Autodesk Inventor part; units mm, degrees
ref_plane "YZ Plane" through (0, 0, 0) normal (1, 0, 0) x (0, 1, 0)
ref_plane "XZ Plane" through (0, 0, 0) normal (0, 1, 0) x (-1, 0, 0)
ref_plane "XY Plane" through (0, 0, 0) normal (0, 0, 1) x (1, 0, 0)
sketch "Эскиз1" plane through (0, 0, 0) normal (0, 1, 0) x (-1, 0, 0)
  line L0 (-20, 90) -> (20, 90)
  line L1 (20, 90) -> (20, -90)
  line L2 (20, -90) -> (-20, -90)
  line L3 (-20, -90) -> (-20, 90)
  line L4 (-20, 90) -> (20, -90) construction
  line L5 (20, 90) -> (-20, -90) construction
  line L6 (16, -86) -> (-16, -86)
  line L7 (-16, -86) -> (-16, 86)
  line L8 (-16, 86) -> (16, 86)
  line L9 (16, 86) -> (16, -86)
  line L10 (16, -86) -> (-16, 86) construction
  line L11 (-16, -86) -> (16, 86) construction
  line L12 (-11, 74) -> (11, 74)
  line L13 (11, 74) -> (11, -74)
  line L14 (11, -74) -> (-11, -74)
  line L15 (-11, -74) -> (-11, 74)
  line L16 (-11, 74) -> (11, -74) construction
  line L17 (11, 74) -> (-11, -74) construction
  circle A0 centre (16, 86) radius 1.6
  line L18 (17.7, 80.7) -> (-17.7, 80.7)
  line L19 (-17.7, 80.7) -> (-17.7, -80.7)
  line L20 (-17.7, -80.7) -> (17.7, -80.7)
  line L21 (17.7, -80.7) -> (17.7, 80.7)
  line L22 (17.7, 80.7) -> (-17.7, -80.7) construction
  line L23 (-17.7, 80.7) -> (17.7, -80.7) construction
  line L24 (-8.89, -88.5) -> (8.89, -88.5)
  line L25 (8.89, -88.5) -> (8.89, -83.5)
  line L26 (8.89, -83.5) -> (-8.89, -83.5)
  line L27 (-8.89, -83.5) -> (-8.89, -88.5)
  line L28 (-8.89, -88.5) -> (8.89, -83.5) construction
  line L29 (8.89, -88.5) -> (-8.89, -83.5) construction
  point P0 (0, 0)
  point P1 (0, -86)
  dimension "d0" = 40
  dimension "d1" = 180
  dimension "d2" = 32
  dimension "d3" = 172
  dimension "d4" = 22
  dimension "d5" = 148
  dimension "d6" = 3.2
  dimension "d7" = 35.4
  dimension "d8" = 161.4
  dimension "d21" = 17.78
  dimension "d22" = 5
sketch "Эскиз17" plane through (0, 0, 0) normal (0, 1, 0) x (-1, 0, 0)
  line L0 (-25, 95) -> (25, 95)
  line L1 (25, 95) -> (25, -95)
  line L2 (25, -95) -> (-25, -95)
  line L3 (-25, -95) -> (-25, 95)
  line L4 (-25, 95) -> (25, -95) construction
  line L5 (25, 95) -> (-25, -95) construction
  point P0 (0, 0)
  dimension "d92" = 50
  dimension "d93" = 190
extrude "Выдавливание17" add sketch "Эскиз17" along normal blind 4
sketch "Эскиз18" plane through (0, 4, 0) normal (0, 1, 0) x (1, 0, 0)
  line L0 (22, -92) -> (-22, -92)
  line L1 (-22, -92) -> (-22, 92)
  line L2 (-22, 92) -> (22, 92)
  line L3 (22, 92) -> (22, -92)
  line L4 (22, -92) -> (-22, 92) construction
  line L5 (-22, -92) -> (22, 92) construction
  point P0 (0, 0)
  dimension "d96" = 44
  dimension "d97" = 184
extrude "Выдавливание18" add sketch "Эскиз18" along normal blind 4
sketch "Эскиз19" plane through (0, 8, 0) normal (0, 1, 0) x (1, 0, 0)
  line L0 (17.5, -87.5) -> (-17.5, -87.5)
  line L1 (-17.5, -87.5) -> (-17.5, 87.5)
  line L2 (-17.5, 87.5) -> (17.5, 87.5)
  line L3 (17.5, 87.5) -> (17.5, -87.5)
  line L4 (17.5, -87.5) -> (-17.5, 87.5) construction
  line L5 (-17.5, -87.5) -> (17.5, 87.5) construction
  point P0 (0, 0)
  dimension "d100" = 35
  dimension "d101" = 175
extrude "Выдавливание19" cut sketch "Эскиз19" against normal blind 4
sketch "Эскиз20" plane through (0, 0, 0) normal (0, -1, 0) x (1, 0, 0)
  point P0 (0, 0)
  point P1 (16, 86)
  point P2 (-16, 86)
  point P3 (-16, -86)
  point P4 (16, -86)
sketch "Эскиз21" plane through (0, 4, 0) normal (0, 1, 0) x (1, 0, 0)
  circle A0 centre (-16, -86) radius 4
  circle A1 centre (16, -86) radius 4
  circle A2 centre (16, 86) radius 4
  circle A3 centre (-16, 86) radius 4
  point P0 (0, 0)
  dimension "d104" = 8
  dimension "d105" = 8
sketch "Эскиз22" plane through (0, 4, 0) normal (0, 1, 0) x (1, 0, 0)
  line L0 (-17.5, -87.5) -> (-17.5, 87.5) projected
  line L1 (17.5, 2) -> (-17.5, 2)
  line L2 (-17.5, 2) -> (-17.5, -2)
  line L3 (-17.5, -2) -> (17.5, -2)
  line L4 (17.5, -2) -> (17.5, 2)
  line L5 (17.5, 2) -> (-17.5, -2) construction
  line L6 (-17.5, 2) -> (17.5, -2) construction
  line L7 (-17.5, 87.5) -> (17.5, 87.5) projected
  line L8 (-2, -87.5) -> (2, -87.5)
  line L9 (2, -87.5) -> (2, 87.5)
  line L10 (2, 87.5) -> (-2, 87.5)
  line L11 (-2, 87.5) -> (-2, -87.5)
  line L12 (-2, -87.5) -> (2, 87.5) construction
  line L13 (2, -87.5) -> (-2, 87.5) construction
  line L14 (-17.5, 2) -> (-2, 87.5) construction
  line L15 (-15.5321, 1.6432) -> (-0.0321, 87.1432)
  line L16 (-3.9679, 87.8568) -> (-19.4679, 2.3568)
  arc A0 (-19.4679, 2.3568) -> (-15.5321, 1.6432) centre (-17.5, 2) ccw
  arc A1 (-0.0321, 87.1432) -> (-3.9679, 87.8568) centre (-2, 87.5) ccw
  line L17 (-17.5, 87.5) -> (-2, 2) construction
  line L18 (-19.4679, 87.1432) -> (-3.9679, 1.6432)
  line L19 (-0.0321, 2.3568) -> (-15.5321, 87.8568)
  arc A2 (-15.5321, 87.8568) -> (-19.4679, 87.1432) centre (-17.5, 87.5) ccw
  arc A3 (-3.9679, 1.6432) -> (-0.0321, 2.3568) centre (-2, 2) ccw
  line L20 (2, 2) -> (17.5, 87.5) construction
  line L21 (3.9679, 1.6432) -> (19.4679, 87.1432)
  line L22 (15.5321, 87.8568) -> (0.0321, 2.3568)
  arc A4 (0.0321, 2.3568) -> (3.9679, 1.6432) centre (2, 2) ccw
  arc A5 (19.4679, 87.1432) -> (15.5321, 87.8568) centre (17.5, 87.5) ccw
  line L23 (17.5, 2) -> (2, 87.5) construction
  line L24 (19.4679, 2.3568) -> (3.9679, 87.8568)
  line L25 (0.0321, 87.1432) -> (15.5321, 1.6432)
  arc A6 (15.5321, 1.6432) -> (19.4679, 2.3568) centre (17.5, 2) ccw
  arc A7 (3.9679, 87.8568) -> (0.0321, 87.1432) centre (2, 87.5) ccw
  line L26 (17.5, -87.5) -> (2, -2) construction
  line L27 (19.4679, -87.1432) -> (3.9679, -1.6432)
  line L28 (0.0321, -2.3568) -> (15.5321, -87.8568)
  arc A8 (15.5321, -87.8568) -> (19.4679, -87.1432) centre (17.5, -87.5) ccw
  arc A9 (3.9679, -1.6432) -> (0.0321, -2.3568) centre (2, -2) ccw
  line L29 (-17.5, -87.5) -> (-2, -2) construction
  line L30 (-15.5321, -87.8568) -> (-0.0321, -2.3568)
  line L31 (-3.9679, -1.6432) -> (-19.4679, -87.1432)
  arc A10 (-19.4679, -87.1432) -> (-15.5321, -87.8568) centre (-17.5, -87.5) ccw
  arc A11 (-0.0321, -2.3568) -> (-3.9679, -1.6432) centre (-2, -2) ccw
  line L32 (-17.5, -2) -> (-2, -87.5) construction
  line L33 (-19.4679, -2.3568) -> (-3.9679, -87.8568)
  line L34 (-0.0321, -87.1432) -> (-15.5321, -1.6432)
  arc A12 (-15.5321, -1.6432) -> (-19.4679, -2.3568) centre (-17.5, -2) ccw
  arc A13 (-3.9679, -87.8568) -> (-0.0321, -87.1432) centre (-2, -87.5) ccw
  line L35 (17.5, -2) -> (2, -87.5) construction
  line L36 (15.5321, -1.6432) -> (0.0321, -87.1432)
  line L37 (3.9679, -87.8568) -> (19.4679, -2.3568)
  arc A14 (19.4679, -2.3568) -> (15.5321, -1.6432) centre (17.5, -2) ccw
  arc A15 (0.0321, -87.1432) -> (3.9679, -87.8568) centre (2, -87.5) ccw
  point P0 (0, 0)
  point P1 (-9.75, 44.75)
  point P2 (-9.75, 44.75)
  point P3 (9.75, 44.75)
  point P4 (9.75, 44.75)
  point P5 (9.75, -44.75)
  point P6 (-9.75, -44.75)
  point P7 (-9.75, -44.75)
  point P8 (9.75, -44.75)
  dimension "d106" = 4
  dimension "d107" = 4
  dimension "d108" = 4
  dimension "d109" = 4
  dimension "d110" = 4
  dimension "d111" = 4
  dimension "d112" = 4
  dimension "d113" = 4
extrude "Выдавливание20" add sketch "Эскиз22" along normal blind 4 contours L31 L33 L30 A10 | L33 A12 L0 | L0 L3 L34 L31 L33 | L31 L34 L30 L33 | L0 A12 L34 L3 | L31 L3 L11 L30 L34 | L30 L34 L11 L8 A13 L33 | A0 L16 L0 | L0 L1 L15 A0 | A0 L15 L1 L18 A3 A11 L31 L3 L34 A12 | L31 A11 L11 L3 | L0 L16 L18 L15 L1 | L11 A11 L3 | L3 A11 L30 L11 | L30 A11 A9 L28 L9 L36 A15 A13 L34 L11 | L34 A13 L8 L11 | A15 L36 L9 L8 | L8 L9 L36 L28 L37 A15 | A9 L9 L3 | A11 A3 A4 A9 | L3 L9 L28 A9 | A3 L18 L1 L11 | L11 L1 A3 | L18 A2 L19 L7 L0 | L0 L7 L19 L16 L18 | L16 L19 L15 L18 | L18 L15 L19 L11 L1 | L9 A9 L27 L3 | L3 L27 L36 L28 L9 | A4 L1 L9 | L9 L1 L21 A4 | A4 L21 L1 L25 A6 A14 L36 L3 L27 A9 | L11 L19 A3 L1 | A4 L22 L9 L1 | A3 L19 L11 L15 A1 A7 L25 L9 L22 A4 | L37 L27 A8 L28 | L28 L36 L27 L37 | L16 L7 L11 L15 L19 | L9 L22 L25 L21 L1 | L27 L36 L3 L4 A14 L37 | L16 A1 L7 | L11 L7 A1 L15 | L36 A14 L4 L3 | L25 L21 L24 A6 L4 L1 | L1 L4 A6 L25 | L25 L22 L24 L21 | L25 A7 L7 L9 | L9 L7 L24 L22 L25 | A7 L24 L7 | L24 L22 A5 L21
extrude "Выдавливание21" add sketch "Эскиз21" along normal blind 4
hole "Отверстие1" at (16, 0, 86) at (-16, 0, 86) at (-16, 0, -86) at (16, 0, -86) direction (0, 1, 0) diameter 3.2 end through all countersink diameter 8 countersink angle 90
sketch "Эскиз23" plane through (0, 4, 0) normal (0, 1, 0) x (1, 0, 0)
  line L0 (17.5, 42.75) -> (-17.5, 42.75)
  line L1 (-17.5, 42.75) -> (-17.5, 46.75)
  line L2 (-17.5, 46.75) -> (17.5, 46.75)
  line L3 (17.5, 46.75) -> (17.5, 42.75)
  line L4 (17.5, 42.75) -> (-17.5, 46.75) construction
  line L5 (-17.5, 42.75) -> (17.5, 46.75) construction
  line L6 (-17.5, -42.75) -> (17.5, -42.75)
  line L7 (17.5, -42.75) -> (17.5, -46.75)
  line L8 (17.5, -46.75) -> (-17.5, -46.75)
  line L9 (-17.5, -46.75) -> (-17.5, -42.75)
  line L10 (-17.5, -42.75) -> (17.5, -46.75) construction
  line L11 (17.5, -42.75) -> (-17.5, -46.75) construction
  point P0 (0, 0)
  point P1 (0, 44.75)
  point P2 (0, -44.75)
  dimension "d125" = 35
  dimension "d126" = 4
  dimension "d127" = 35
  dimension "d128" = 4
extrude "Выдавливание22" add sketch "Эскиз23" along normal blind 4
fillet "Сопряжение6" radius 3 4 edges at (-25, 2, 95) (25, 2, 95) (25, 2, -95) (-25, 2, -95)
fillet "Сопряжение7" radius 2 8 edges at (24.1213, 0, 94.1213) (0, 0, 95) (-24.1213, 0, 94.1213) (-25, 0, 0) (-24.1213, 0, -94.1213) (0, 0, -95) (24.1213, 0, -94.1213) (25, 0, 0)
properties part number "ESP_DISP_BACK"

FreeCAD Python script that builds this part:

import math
import FreeCAD as App
import Part
import Sketcher

V = App.Vector


def edges_at(feature, points):
    """Names of the edges that pass closest to the given points."""
    edges = feature.Shape.Edges
    near = lambda p: min(range(len(edges)), key=lambda i: edges[i].distToShape(Part.Vertex(*p))[0])
    return sorted({f"Edge{near(p) + 1}" for p in points})


def add_polygon(sketch, points):
    """Adds a closed chain of lines whose ends are joined by coincident constraints."""
    first, n = sketch.GeometryCount, len(points)
    for a, b in zip(points, points[1:] + points[:1]):
        sketch.addGeometry(Part.LineSegment(App.Vector(*a, 0), App.Vector(*b, 0)), False)
    for i in range(n):
        sketch.addConstraint(Sketcher.Constraint("Coincident", first + i, 2, first + (i + 1) % n, 1))

doc = App.newDocument("Part")
body = doc.addObject("PartDesign::Body", "Body")

sketch1 = body.newObject("Sketcher::SketchObject", "Sketch")
sketch1.AttachmentSupport = (doc.getObject("XZ_Plane"), [""])
sketch1.MapMode = "FlatFace"
add_polygon(sketch1, [(-25, 95), (25, 95), (25, -95), (-25, -95)])
sketch1.addConstraint([
    Sketcher.Constraint("Horizontal", 0),
    Sketcher.Constraint("Vertical", 1),
    Sketcher.Constraint("Horizontal", 2),
    Sketcher.Constraint("Vertical", 3),
    Sketcher.Constraint("Symmetric", 0, 2, 2, 2, -1, 1),
    Sketcher.Constraint("DistanceX", 0, 1, 0, 2, 50.0),
    Sketcher.Constraint("DistanceY", 1, 2, 1, 1, 190.0),
])
pad1 = body.newObject("PartDesign::Pad", "Pad")
pad1.Profile = sketch1
pad1.Length = 4
pad1.Reversed = True

sketch2 = body.newObject("Sketcher::SketchObject", "Sketch001")
sketch2.AttachmentSupport = (doc.getObject("XZ_Plane"), [""])
sketch2.MapMode = "FlatFace"
sketch2.AttachmentOffset = App.Placement(V(0, 0, -4), App.Rotation())
add_polygon(sketch2, [(-22, 92), (22, 92), (22, -92), (-22, -92)])
sketch2.addConstraint([
    Sketcher.Constraint("Horizontal", 0),
    Sketcher.Constraint("Vertical", 1),
    Sketcher.Constraint("Horizontal", 2),
    Sketcher.Constraint("Vertical", 3),
    Sketcher.Constraint("Symmetric", 0, 2, 2, 2, -1, 1),
    Sketcher.Constraint("DistanceX", 0, 1, 0, 2, 44.0),
    Sketcher.Constraint("DistanceY", 1, 2, 1, 1, 184.0),
])
pad2 = body.newObject("PartDesign::Pad", "Pad001")
pad2.Profile = sketch2
pad2.Length = 4
pad2.Reversed = True

sketch3 = body.newObject("Sketcher::SketchObject", "Sketch002")
sketch3.AttachmentSupport = (doc.getObject("XZ_Plane"), [""])
sketch3.MapMode = "FlatFace"
sketch3.AttachmentOffset = App.Placement(V(0, 0, -8), App.Rotation())
add_polygon(sketch3, [(-18, 88), (18, 88), (18, -88), (-18, -88)])
sketch3.addConstraint([
    Sketcher.Constraint("Horizontal", 0),
    Sketcher.Constraint("Vertical", 1),
    Sketcher.Constraint("Horizontal", 2),
    Sketcher.Constraint("Vertical", 3),
    Sketcher.Constraint("Symmetric", 0, 2, 2, 2, -1, 1),
    Sketcher.Constraint("DistanceX", 0, 1, 0, 2, 35.0),
    Sketcher.Constraint("DistanceY", 1, 2, 1, 1, 175.0),
])
pocket1 = body.newObject("PartDesign::Pocket", "Pocket")
pocket1.Profile = sketch3
pocket1.Length = 4
pocket1.Reversed = True

sketch4 = body.newObject("Sketcher::SketchObject", "Sketch003")
sketch4.AttachmentSupport = (doc.getObject("XZ_Plane"), [""])
sketch4.MapMode = "FlatFace"
sketch4.AttachmentOffset = App.Placement(V(0, 0, -4), App.Rotation())
sketch4.addGeometry(Part.LineSegment(V(-11.8, 44.8, 0), V(-19.5, 87.1, 0)), False)
sketch4.addGeometry(Part.ArcOfCircle(Part.Circle(V(-17.5, 87.5, 0), V(0, 0, 1), 2), math.radians(10), math.radians(190)), False)
sketch4.addGeometry(Part.LineSegment(V(-15.5, 87.9, 0), V(-9.8, 56, 0)), False)
sketch4.addGeometry(Part.LineSegment(V(-9.8, 56, 0), V(-4, 87.9, 0)), False)
sketch4.addGeometry(Part.ArcOfCircle(Part.Circle(V(-2, 87.5, 0), V(0, 0, 1), 2), math.radians(0), math.radians(170)), False)
sketch4.addGeometry(Part.ArcOfCircle(Part.Circle(V(2, 87.5, 0), V(0, 0, 1), 2), math.radians(10), math.radians(180)), False)
sketch4.addGeometry(Part.LineSegment(V(4, 87.9, 0), V(9.8, 56, 0)), False)
sketch4.addGeometry(Part.LineSegment(V(9.8, 56, 0), V(15.5, 87.9, 0)), False)
sketch4.addGeometry(Part.ArcOfCircle(Part.Circle(V(17.5, 87.5, 0), V(0, 0, 1), 2), math.radians(-10), math.radians(170)), False)
sketch4.addGeometry(Part.LineSegment(V(19.5, 87.1, 0), V(11.8, 44.8, 0)), False)
sketch4.addGeometry(Part.LineSegment(V(11.8, 44.8, 0), V(19.5, 2.4, 0)), False)
sketch4.addGeometry(Part.ArcOfCircle(Part.Circle(V(17.5, 2, 0), V(0, 0, 1), 2), math.radians(-90), math.radians(10)), False)
sketch4.addGeometry(Part.ArcOfCircle(Part.Circle(V(17.5, -2, 0), V(0, 0, 1), 2), math.radians(-10), math.radians(90)), False)
sketch4.addGeometry(Part.LineSegment(V(19.5, -2.4, 0), V(11.8, -44.8, 0)), False)
sketch4.addGeometry(Part.LineSegment(V(11.8, -44.8, 0), V(19.5, -87.1, 0)), False)
sketch4.addGeometry(Part.ArcOfCircle(Part.Circle(V(17.5, -87.5, 0), V(0, 0, 1), 2), math.radians(-170), math.radians(10)), False)
sketch4.addGeometry(Part.LineSegment(V(15.5, -87.9, 0), V(9.8, -56, 0)), False)
sketch4.addGeometry(Part.LineSegment(V(9.8, -56, 0), V(4, -87.9, 0)), False)
sketch4.addGeometry(Part.ArcOfCircle(Part.Circle(V(2, -87.5, 0), V(0, 0, 1), 2), math.radians(-180), math.radians(-10)), False)
sketch4.addGeometry(Part.ArcOfCircle(Part.Circle(V(-2, -87.5, 0), V(0, 0, 1), 2), math.radians(-170), math.radians(0)), False)
sketch4.addGeometry(Part.LineSegment(V(-4, -87.9, 0), V(-9.8, -56, 0)), False)
sketch4.addGeometry(Part.LineSegment(V(-9.8, -56, 0), V(-15.5, -87.9, 0)), False)
sketch4.addGeometry(Part.ArcOfCircle(Part.Circle(V(-17.5, -87.5, 0), V(0, 0, 1), 2), math.radians(170), math.radians(350)), False)
sketch4.addGeometry(Part.LineSegment(V(-19.5, -87.1, 0), V(-11.8, -44.8, 0)), False)
sketch4.addGeometry(Part.LineSegment(V(-11.8, -44.8, 0), V(-19.5, -2.4, 0)), False)
sketch4.addGeometry(Part.ArcOfCircle(Part.Circle(V(-17.5, -2, 0), V(0, 0, 1), 2), math.radians(90), math.radians(190)), False)
sketch4.addGeometry(Part.ArcOfCircle(Part.Circle(V(-17.5, 2, 0), V(0, 0, 1), 2), math.radians(170), math.radians(270)), False)
sketch4.addGeometry(Part.LineSegment(V(-19.5, 2.4, 0), V(-11.8, 44.8, 0)), False)
add_polygon(sketch4, [(-9.8, 33.5), (-15.5, 2), (-4, 2)])
add_polygon(sketch4, [(-7.7, 44.8), (-2, 13.2), (-2, 76.3)])
add_polygon(sketch4, [(-4, -2), (-15.5, -2), (-9.8, -33.5)])
add_polygon(sketch4, [(2, 76.3), (2, 13.2), (7.7, 44.8)])
add_polygon(sketch4, [(-2, -13.2), (-7.7, -44.8), (-2, -76.3)])
add_polygon(sketch4, [(9.8, 33.5), (4, 2), (15.5, 2)])
add_polygon(sketch4, [(2, -13.2), (2, -76.3), (7.7, -44.8)])
add_polygon(sketch4, [(15.5, -2), (4, -2), (9.8, -33.5)])
sketch4.addConstraint([
    Sketcher.Constraint("Tangent", 0, 2, 1, 2),
    Sketcher.Constraint("Tangent", 1, 1, 2, 1),
    Sketcher.Constraint("Coincident", 2, 2, 3, 1),
    Sketcher.Constraint("Tangent", 3, 2, 4, 2),
    Sketcher.Constraint("Tangent", 4, 1, 5, 2),
    Sketcher.Constraint("Tangent", 5, 1, 6, 1),
    Sketcher.Constraint("Coincident", 6, 2, 7, 1),
    Sketcher.Constraint("Tangent", 7, 2, 8, 2),
    Sketcher.Constraint("Tangent", 8, 1, 9, 1),
    Sketcher.Constraint("Coincident", 9, 2, 10, 1),
    Sketcher.Constraint("Tangent", 10, 2, 11, 2),
    Sketcher.Constraint("Tangent", 11, 1, 12, 2),
    Sketcher.Constraint("Tangent", 12, 1, 13, 1),
    Sketcher.Constraint("Coincident", 13, 2, 14, 1),
    Sketcher.Constraint("Tangent", 14, 2, 15, 2),
    Sketcher.Constraint("Tangent", 15, 1, 16, 1),
    Sketcher.Constraint("Coincident", 16, 2, 17, 1),
    Sketcher.Constraint("Tangent", 17, 2, 18, 2),
    Sketcher.Constraint("Tangent", 18, 1, 19, 2),
    Sketcher.Constraint("Tangent", 19, 1, 20, 1),
    Sketcher.Constraint("Coincident", 20, 2, 21, 1),
    Sketcher.Constraint("Tangent", 21, 2, 22, 2),
    Sketcher.Constraint("Tangent", 22, 1, 23, 1),
    Sketcher.Constraint("Coincident", 23, 2, 24, 1),
    Sketcher.Constraint("Tangent", 24, 2, 25, 2),
    Sketcher.Constraint("Tangent", 25, 1, 26, 2),
    Sketcher.Constraint("Tangent", 26, 1, 27, 1),
    Sketcher.Constraint("Coincident", 27, 2, 0, 1),
    Sketcher.Constraint("Horizontal", 29),
    Sketcher.Constraint("Vertical", 32),
    Sketcher.Constraint("Horizontal", 34),
    Sketcher.Constraint("Vertical", 37),
    Sketcher.Constraint("Vertical", 42),
    Sketcher.Constraint("Horizontal", 44),
    Sketcher.Constraint("Vertical", 46),
    Sketcher.Constraint("Horizontal", 49),
    Sketcher.Constraint("Equal", 1, 4),
    Sketcher.Constraint("Equal", 4, 5),
    Sketcher.Constraint("Equal", 5, 8),
    Sketcher.Constraint("Equal", 8, 11),
    Sketcher.Constraint("Equal", 11, 12),
    Sketcher.Constraint("Equal", 12, 15),
    Sketcher.Constraint("Equal", 15, 18),
    Sketcher.Constraint("Equal", 18, 19),
    Sketcher.Constraint("Equal", 19, 22),
    Sketcher.Constraint("Equal", 22, 25),
    Sketcher.Constraint("Equal", 25, 26),
    Sketcher.Constraint("Symmetric", 1, 3, 15, 3, -1, 1),
    Sketcher.Constraint("Symmetric", 4, 3, 18, 3, -1, 1),
    Sketcher.Constraint("Symmetric", 8, 3, 22, 3, -1, 1),
    Sketcher.Constraint("Symmetric", 11, 3, 25, 3, -1, 1),
    Sketcher.Constraint("Symmetric", 2, 2, 16, 2, -1, 1),
    Sketcher.Constraint("Symmetric", 5, 1, 19, 1, -1, 1),
    Sketcher.Constraint("Symmetric", 9, 2, 23, 2, -1, 1),
    Sketcher.Constraint("Symmetric", 12, 1, 26, 1, -1, 1),
    Sketcher.Constraint("Symmetric", 38, 2, 40, 2, -1, 1),
    Sketcher.Constraint("Symmetric", 39, 2, 41, 2, -1, 1),
    Sketcher.Constraint("Symmetric", 36, 2, 43, 2, -1, 1),
    Sketcher.Constraint("Symmetric", 35, 2, 45, 2, -1, 1),
    Sketcher.Constraint("Symmetric", 32, 2, 46, 2, -1, 1),
    Sketcher.Constraint("Symmetric", 33, 2, 47, 2, -1, 1),
    Sketcher.Constraint("Symmetric", 29, 2, 49, 2, -1, 1),
    Sketcher.Constraint("Symmetric", 30, 2, 50, 2, -1, 1),
    Sketcher.Constraint("Symmetric", 4, 3, 5, 3, -2),
    Sketcher.Constraint("Symmetric", 1, 3, 8, 3, -2),
    Sketcher.Constraint("Symmetric", 12, 3, 25, 3, -2),
    Sketcher.Constraint("Symmetric", 2, 2, 6, 2, -2),
    Sketcher.Constraint("Symmetric", 13, 2, 23, 2, -2),
    Sketcher.Constraint("Symmetric", 31, 2, 37, 2, -2),
    Sketcher.Constraint("Symmetric", 33, 2, 38, 2, -2),
    Sketcher.Constraint("Symmetric", 29, 2, 43, 2, -2),
    Sketcher.Constraint("Symmetric", 30, 2, 45, 2, -2),
    Sketcher.Constraint("Parallel", 0, 2),
    Sketcher.Constraint("Parallel", 2, 6),
    Sketcher.Constraint("Parallel", 7, 9),
    Sketcher.Constraint("Parallel", 6, 10),
    Sketcher.Constraint("Parallel", 17, 21),
    Sketcher.Constraint("Parallel", 27, 28),
    Sketcher.Constraint("Parallel", 24, 30),
    Sketcher.Constraint("Parallel", 30, 31),
    Sketcher.Constraint("Parallel", 28, 33),
    Sketcher.Constraint("Parallel", 31, 35),
    Sketcher.Constraint("Parallel", 35, 39),
    Sketcher.Constraint("Parallel", 38, 40),
    Sketcher.Constraint("Parallel", 41, 45),
    Sketcher.Constraint("Parallel", 45, 48),
    Sketcher.Constraint("Parallel", 47, 51),
    Sketcher.Constraint("Horizontal", 1, 3, 4, 3),
    Sketcher.Constraint("Horizontal", 26, 3, 28, 2),
    Sketcher.Constraint("Horizontal", 27, 2, 33, 2),
    Sketcher.Constraint("Vertical", 8, 3, 11, 3),
    Sketcher.Constraint("Vertical", 20, 2, 30, 2),
    Sketcher.Constraint("Vertical", 19, 3, 31, 2),
    Sketcher.Constraint("Equal", 30, 31),
    Sketcher.Constraint("Radius", 1, 2.0),
    Sketcher.Constraint("DistanceX", 1, 3, -1, 1, 17.5),
    Sketcher.Constraint("DistanceY", -1, 1, 1, 3, 87.5),
    Sketcher.Constraint("DistanceY", 32, 1, 32, 2, 63.076),
    Sketcher.Constraint("Distance", 28, 32.052),
])
pad3 = body.newObject("PartDesign::Pad", "Pad002")
pad3.Profile = sketch4
pad3.Length = 4
pad3.Reversed = True

sketch5 = body.newObject("Sketcher::SketchObject", "Sketch004")
sketch5.AttachmentSupport = (doc.getObject("XZ_Plane"), [""])
sketch5.MapMode = "FlatFace"
sketch5.AttachmentOffset = App.Placement(V(0, 0, -4), App.Rotation())
sketch5.addGeometry([
    Part.Circle(V(-16, 86, 0), V(0, 0, 1), 4),
    Part.Circle(V(16, 86, 0), V(0, 0, 1), 4),
    Part.Circle(V(16, -86, 0), V(0, 0, 1), 4),
    Part.Circle(V(-16, -86, 0), V(0, 0, 1), 4),
], False)
sketch5.addConstraint([
    Sketcher.Constraint("Equal", 0, 1),
    Sketcher.Constraint("Equal", 1, 2),
    Sketcher.Constraint("Equal", 2, 3),
    Sketcher.Constraint("Symmetric", 0, 3, 2, 3, -1, 1),
    Sketcher.Constraint("Symmetric", 1, 3, 3, 3, -1, 1),
    Sketcher.Constraint("Symmetric", 0, 3, 1, 3, -2),
    Sketcher.Constraint("Diameter", 0, 8.0),
    Sketcher.Constraint("DistanceX", 0, 3, -1, 1, 16.0),
    Sketcher.Constraint("DistanceY", -1, 1, 0, 3, 86.0),
])
pad4 = body.newObject("PartDesign::Pad", "Pad003")
pad4.Profile = sketch5
pad4.Length = 4
pad4.Reversed = True

sketch6 = body.newObject("Sketcher::SketchObject", "Sketch005")
sketch6.AttachmentSupport = (doc.getObject("XZ_Plane"), [""])
sketch6.MapMode = "FlatFace"
sketch6.addGeometry([
    Part.Circle(V(16, 86, 0), V(0, 0, 1), 1.6),
    Part.Circle(V(-16, 86, 0), V(0, 0, 1), 1.6),
    Part.Circle(V(-16, -86, 0), V(0, 0, 1), 1.6),
    Part.Circle(V(16, -86, 0), V(0, 0, 1), 1.6),
], False)
sketch6.addConstraint([
    Sketcher.Constraint("Equal", 0, 1),
    Sketcher.Constraint("Equal", 1, 2),
    Sketcher.Constraint("Equal", 2, 3),
    Sketcher.Constraint("Symmetric", 0, 3, 2, 3, -1, 1),
    Sketcher.Constraint("Symmetric", 1, 3, 3, 3, -1, 1),
    Sketcher.Constraint("Symmetric", 0, 3, 1, 3, -2),
    Sketcher.Constraint("Diameter", 0, 3.2),
    Sketcher.Constraint("DistanceX", -1, 1, 0, 3, 16.0),
    Sketcher.Constraint("DistanceY", -1, 1, 0, 3, 86.0),
])
doc.recompute()
hole = body.newObject("PartDesign::Hole", "Hole")
hole.Profile = sketch6
hole.ThreadType = "None"
hole.Diameter = 3.2
hole.DepthType = "ThroughAll"
hole.HoleCutType = "Countersink"
hole.HoleCutDiameter = 8
hole.HoleCutCountersinkAngle = 90

sketch7 = body.newObject("Sketcher::SketchObject", "Sketch006")
sketch7.AttachmentSupport = (doc.getObject("XZ_Plane"), [""])
sketch7.MapMode = "FlatFace"
sketch7.AttachmentOffset = App.Placement(V(0, 0, -4), App.Rotation())
add_polygon(sketch7, [(-17.5, -42.8), (17.5, -42.8), (17.5, -46.8), (-17.5, -46.8)])
add_polygon(sketch7, [(17.5, 42.8), (-17.5, 42.8), (-17.5, 46.8), (17.5, 46.8)])
sketch7.addConstraint([
    Sketcher.Constraint("Horizontal", 0),
    Sketcher.Constraint("Vertical", 1),
    Sketcher.Constraint("Horizontal", 2),
    Sketcher.Constraint("Vertical", 3),
    Sketcher.Constraint("Horizontal", 4),
    Sketcher.Constraint("Vertical", 5),
    Sketcher.Constraint("Horizontal", 6),
    Sketcher.Constraint("Vertical", 7),
    Sketcher.Constraint("Symmetric", 0, 2, 4, 2, -1, 1),
    Sketcher.Constraint("Symmetric", 2, 2, 6, 2, -1, 1),
    Sketcher.Constraint("Vertical", 3, 2, 4, 2),
    Sketcher.Constraint("DistanceX", 0, 1, 0, 2, 35.0),
    Sketcher.Constraint("DistanceY", 1, 2, 1, 1, 4.0),
    Sketcher.Constraint("DistanceY", 3, 2, 4, 2, 85.5),
])
pad5 = body.newObject("PartDesign::Pad", "Pad004")
pad5.Profile = sketch7
pad5.Length = 4
pad5.Reversed = True
doc.recompute()

fillet = body.newObject("PartDesign::Fillet", "Fillet")
fillet.Base = (pad5, edges_at(pad5, [
    (-25, 2, 95),
    (25, 2, 95),
    (25, 2, -95),
    (-25, 2, -95),
]))
fillet.Radius = 3
doc.recompute()

fillet2 = body.newObject("PartDesign::Fillet", "Fillet001")
fillet2.Base = (fillet, edges_at(fillet, [
    (24.121, 0, 94.121),
    (0, 0, 95),
    (-24.121, 0, 94.121),
    (-25, 0, 0),
    (-24.121, 0, -94.121),
    (0, 0, -95),
    (24.121, 0, -94.121),
    (25, 0, 0),
]))
fillet2.Radius = 2

doc.recompute()
